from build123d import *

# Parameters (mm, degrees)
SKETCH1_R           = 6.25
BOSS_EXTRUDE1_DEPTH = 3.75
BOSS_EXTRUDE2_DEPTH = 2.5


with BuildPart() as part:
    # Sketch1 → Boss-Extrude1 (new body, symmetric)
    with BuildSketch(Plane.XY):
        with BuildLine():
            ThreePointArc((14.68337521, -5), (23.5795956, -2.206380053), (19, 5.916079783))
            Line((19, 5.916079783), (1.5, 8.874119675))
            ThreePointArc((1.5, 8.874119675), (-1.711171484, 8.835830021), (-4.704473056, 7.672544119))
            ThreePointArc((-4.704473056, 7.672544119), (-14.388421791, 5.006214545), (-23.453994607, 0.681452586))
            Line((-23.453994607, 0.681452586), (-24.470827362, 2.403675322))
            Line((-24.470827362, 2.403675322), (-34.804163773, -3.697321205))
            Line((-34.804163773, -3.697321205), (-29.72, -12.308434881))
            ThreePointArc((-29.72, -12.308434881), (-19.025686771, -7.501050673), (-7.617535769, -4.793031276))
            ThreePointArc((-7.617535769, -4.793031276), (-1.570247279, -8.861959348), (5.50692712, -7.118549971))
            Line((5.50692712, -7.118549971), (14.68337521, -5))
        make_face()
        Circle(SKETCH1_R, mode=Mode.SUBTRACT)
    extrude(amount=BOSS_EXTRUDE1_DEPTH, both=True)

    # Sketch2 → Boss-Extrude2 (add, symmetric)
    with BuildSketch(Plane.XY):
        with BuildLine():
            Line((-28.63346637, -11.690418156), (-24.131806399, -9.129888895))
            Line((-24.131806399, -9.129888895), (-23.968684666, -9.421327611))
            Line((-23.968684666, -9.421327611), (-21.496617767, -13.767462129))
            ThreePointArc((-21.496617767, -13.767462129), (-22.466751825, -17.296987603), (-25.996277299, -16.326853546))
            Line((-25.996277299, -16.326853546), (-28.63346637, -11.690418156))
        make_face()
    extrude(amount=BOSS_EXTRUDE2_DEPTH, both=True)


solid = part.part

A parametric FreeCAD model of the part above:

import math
import FreeCAD as App
import Part
import Sketcher

V = App.Vector
Q = App.Units.Quantity

doc = App.newDocument("Part")
body = doc.addObject("PartDesign::Body", "Body")

# Sketch on XY plane
sketch1 = body.newObject("Sketcher::SketchObject", "Sketch")
sketch1.AttachmentSupport = (doc.getObject("XY_Plane"), [""])
sketch1.MapMode = "FlatFace"
sketch1.addGeometry(Part.ArcOfCircle(Part.Circle(V(18, 0, 0), V(0, 0, 1), 6), math.radians(-123.55731), math.radians(80.405932)), False)
sketch1.addGeometry(Part.LineSegment(V(19, 5.91608, 0), V(1.5, 8.87412, 0)), False)
sketch1.addGeometry(Part.ArcOfCircle(Part.Circle(V(0, 0, 0), V(0, 0, 1), 9), math.radians(80.405932), math.radians(121.514829)), False)
sketch1.addGeometry(Part.ArcOfCircle(Part.Circle(V(5.525739, -48.401895, 0), V(0, 0, 1), 57), math.radians(100.339321), math.radians(120.558403)), False)
sketch1.addGeometry(Part.LineSegment(V(-23.453995, 0.681453, 0), V(-24.470827, 2.403675, 0)), False)
sketch1.addGeometry(Part.LineSegment(V(-24.470827, 2.403675, 0), V(-34.804164, -3.697321, 0)), False)
sketch1.addGeometry(Part.LineSegment(V(-34.804164, -3.697321, 0), V(-29.72, -12.308435, 0)), False)
sketch1.addGeometry(Part.ArcOfCircle(Part.Circle(V(0.93363, -66.200503, 0), V(0, 0, 1), 62), math.radians(97.92762), math.radians(119.631075)), False)
sketch1.addGeometry(Part.ArcOfCircle(Part.Circle(V(0, 0, 0), V(0, 0, 1), 9), math.radians(-147.821478), math.radians(-52.274379)), False)
sketch1.addGeometry(Part.LineSegment(V(5.506927, -7.11855, 0), V(14.683375, -5, 0)), False)
sketch1.addGeometry(Part.Circle(V(0, 0, 0), V(0, 0, 1), 6.25), False)
sketch1.addConstraint(Sketcher.Constraint("Tangent", 0, 2, 1, 1))
sketch1.addConstraint(Sketcher.Constraint("Tangent", 1, 2, 2, 1))
sketch1.addConstraint(Sketcher.Constraint("Coincident", 2, 2, 3, 1))
sketch1.addConstraint(Sketcher.Constraint("Coincident", 3, 2, 4, 1))
sketch1.addConstraint(Sketcher.Constraint("Coincident", 4, 2, 5, 1))
sketch1.addConstraint(Sketcher.Constraint("Coincident", 5, 2, 6, 1))
sketch1.addConstraint(Sketcher.Constraint("Coincident", 6, 2, 7, 2))
sketch1.addConstraint(Sketcher.Constraint("Coincident", 7, 1, 8, 1))
sketch1.addConstraint(Sketcher.Constraint("Coincident", 8, 2, 9, 1))
sketch1.addConstraint(Sketcher.Constraint("Coincident", 9, 2, 0, 1))
sketch1.addConstraint(Sketcher.Constraint("Coincident", 2, 3, -1, 1))
sketch1.addConstraint(Sketcher.Constraint("Coincident", 8, 3, -1, 1))
sketch1.addConstraint(Sketcher.Constraint("Coincident", 10, 3, -1, 1))
sketch1.addConstraint(Sketcher.Constraint("Equal", 2, 8))
sketch1.addConstraint(Sketcher.Constraint("PointOnObject", 0, 3, -1))
sketch1.addConstraint(Sketcher.Constraint("Perpendicular", 4, 5))
sketch1.addConstraint(Sketcher.Constraint("Perpendicular", 5, 6))
sketch1.addConstraint(Sketcher.Constraint("Radius", 0, Q("6 mm")))
sketch1.addConstraint(Sketcher.Constraint("Radius", 2, Q("9 mm")))
sketch1.addConstraint(Sketcher.Constraint("Radius", 3, Q("57 mm")))
sketch1.addConstraint(Sketcher.Constraint("Radius", 7, Q("62 mm")))
sketch1.addConstraint(Sketcher.Constraint("Diameter", 10, Q("12.5 mm")))
sketch1.addConstraint(Sketcher.Constraint("Angle", 9, Q("13 deg")))
sketch1.addConstraint(Sketcher.Constraint("Distance", 4, Q("2 mm")))
sketch1.addConstraint(Sketcher.Constraint("Distance", 5, Q("12 mm")))
sketch1.addConstraint(Sketcher.Constraint("Distance", 6, Q("10 mm")))
sketch1.addConstraint(Sketcher.Constraint("DistanceX", -1, 1, 0, 3, Q("18 mm")))
sketch1.addConstraint(Sketcher.Constraint("DistanceY", 9, 2, -1, 1, Q("5 mm")))
sketch1.addConstraint(Sketcher.Constraint("DistanceX", 6, 2, -1, 1, Q("29.72 mm")))
sketch1.addConstraint(Sketcher.Constraint("DistanceX", -1, 1, 3, 3, Q("5.525739 mm")))
sketch1.addConstraint(Sketcher.Constraint("DistanceX", -1, 1, 7, 3, Q("0.93363 mm")))
sketch1.addConstraint(Sketcher.Constraint("DistanceY", 5, 2, -1, 1, Q("3.697321 mm")))
sketch1.addConstraint(Sketcher.Constraint("DistanceY", 7, 1, -1, 1, Q("4.793031 mm")))
pad1 = body.newObject("PartDesign::Pad", "Pad")
pad1.Profile = sketch1
pad1.Length = 7.5
pad1.Midplane = True

# Sketch on XY plane
sketch2 = body.newObject("Sketcher::SketchObject", "Sketch001")
sketch2.AttachmentSupport = (doc.getObject("XY_Plane"), [""])
sketch2.MapMode = "FlatFace"
sketch2.addGeometry(Part.LineSegment(V(-24.131806, -9.129889, 0), V(-28.633466, -11.690418, 0)), False)
sketch2.addGeometry(Part.LineSegment(V(-28.633466, -11.690418, 0), V(-25.996277, -16.326854, 0)), False)
sketch2.addGeometry(Part.ArcOfCircle(Part.Circle(V(-23.746448, -15.047158, 0), V(0, 0, 1), 2.588311), math.radians(-150.368925), math.radians(29.631075)), False)
sketch2.addGeometry(Part.LineSegment(V(-21.496618, -13.767462, 0), V(-23.968685, -9.421328, 0)), False)
sketch2.addGeometry(Part.LineSegment(V(-23.968685, -9.421328, 0), V(-24.131806, -9.129889, 0)), False)
sketch2.addConstraint(Sketcher.Constraint("Coincident", 0, 2, 1, 1))
sketch2.addConstraint(Sketcher.Constraint("Tangent", 1, 2, 2, 1))
sketch2.addConstraint(Sketcher.Constraint("Tangent", 2, 2, 3, 1))
sketch2.addConstraint(Sketcher.Constraint("Coincident", 3, 2, 4, 1))
sketch2.addConstraint(Sketcher.Constraint("Coincident", 4, 2, 0, 1))
sketch2.addConstraint(Sketcher.Constraint("Perpendicular", 0, 1))
sketch2.addConstraint(Sketcher.Constraint("Parallel", 1, 3))
sketch2.addConstraint(Sketcher.Constraint("Distance", 3, Q("5 mm")))
sketch2.addConstraint(Sketcher.Constraint("Radius", 2, Q("2.588311 mm")))
sketch2.addConstraint(Sketcher.Constraint("DistanceY", 0, 2, -1, 1, Q("11.690418 mm")))
sketch2.addConstraint(Sketcher.Constraint("DistanceY", 4, 2, -1, 1, Q("9.129889 mm")))
sketch2.addConstraint(Sketcher.Constraint("DistanceX", 0, 2, 2, 3, Q("4.887019 mm")))
sketch2.addConstraint(Sketcher.Constraint("DistanceY", 2, 3, 0, 2, Q("3.35674 mm")))
sketch2.addConstraint(Sketcher.Constraint("DistanceX", 2, 3, -1, 1, Q("23.746448 mm")))
pad2 = body.newObject("PartDesign::Pad", "Pad001")
pad2.Profile = sketch2
pad2.Length = 5
pad2.Midplane = True

doc.recompute()
